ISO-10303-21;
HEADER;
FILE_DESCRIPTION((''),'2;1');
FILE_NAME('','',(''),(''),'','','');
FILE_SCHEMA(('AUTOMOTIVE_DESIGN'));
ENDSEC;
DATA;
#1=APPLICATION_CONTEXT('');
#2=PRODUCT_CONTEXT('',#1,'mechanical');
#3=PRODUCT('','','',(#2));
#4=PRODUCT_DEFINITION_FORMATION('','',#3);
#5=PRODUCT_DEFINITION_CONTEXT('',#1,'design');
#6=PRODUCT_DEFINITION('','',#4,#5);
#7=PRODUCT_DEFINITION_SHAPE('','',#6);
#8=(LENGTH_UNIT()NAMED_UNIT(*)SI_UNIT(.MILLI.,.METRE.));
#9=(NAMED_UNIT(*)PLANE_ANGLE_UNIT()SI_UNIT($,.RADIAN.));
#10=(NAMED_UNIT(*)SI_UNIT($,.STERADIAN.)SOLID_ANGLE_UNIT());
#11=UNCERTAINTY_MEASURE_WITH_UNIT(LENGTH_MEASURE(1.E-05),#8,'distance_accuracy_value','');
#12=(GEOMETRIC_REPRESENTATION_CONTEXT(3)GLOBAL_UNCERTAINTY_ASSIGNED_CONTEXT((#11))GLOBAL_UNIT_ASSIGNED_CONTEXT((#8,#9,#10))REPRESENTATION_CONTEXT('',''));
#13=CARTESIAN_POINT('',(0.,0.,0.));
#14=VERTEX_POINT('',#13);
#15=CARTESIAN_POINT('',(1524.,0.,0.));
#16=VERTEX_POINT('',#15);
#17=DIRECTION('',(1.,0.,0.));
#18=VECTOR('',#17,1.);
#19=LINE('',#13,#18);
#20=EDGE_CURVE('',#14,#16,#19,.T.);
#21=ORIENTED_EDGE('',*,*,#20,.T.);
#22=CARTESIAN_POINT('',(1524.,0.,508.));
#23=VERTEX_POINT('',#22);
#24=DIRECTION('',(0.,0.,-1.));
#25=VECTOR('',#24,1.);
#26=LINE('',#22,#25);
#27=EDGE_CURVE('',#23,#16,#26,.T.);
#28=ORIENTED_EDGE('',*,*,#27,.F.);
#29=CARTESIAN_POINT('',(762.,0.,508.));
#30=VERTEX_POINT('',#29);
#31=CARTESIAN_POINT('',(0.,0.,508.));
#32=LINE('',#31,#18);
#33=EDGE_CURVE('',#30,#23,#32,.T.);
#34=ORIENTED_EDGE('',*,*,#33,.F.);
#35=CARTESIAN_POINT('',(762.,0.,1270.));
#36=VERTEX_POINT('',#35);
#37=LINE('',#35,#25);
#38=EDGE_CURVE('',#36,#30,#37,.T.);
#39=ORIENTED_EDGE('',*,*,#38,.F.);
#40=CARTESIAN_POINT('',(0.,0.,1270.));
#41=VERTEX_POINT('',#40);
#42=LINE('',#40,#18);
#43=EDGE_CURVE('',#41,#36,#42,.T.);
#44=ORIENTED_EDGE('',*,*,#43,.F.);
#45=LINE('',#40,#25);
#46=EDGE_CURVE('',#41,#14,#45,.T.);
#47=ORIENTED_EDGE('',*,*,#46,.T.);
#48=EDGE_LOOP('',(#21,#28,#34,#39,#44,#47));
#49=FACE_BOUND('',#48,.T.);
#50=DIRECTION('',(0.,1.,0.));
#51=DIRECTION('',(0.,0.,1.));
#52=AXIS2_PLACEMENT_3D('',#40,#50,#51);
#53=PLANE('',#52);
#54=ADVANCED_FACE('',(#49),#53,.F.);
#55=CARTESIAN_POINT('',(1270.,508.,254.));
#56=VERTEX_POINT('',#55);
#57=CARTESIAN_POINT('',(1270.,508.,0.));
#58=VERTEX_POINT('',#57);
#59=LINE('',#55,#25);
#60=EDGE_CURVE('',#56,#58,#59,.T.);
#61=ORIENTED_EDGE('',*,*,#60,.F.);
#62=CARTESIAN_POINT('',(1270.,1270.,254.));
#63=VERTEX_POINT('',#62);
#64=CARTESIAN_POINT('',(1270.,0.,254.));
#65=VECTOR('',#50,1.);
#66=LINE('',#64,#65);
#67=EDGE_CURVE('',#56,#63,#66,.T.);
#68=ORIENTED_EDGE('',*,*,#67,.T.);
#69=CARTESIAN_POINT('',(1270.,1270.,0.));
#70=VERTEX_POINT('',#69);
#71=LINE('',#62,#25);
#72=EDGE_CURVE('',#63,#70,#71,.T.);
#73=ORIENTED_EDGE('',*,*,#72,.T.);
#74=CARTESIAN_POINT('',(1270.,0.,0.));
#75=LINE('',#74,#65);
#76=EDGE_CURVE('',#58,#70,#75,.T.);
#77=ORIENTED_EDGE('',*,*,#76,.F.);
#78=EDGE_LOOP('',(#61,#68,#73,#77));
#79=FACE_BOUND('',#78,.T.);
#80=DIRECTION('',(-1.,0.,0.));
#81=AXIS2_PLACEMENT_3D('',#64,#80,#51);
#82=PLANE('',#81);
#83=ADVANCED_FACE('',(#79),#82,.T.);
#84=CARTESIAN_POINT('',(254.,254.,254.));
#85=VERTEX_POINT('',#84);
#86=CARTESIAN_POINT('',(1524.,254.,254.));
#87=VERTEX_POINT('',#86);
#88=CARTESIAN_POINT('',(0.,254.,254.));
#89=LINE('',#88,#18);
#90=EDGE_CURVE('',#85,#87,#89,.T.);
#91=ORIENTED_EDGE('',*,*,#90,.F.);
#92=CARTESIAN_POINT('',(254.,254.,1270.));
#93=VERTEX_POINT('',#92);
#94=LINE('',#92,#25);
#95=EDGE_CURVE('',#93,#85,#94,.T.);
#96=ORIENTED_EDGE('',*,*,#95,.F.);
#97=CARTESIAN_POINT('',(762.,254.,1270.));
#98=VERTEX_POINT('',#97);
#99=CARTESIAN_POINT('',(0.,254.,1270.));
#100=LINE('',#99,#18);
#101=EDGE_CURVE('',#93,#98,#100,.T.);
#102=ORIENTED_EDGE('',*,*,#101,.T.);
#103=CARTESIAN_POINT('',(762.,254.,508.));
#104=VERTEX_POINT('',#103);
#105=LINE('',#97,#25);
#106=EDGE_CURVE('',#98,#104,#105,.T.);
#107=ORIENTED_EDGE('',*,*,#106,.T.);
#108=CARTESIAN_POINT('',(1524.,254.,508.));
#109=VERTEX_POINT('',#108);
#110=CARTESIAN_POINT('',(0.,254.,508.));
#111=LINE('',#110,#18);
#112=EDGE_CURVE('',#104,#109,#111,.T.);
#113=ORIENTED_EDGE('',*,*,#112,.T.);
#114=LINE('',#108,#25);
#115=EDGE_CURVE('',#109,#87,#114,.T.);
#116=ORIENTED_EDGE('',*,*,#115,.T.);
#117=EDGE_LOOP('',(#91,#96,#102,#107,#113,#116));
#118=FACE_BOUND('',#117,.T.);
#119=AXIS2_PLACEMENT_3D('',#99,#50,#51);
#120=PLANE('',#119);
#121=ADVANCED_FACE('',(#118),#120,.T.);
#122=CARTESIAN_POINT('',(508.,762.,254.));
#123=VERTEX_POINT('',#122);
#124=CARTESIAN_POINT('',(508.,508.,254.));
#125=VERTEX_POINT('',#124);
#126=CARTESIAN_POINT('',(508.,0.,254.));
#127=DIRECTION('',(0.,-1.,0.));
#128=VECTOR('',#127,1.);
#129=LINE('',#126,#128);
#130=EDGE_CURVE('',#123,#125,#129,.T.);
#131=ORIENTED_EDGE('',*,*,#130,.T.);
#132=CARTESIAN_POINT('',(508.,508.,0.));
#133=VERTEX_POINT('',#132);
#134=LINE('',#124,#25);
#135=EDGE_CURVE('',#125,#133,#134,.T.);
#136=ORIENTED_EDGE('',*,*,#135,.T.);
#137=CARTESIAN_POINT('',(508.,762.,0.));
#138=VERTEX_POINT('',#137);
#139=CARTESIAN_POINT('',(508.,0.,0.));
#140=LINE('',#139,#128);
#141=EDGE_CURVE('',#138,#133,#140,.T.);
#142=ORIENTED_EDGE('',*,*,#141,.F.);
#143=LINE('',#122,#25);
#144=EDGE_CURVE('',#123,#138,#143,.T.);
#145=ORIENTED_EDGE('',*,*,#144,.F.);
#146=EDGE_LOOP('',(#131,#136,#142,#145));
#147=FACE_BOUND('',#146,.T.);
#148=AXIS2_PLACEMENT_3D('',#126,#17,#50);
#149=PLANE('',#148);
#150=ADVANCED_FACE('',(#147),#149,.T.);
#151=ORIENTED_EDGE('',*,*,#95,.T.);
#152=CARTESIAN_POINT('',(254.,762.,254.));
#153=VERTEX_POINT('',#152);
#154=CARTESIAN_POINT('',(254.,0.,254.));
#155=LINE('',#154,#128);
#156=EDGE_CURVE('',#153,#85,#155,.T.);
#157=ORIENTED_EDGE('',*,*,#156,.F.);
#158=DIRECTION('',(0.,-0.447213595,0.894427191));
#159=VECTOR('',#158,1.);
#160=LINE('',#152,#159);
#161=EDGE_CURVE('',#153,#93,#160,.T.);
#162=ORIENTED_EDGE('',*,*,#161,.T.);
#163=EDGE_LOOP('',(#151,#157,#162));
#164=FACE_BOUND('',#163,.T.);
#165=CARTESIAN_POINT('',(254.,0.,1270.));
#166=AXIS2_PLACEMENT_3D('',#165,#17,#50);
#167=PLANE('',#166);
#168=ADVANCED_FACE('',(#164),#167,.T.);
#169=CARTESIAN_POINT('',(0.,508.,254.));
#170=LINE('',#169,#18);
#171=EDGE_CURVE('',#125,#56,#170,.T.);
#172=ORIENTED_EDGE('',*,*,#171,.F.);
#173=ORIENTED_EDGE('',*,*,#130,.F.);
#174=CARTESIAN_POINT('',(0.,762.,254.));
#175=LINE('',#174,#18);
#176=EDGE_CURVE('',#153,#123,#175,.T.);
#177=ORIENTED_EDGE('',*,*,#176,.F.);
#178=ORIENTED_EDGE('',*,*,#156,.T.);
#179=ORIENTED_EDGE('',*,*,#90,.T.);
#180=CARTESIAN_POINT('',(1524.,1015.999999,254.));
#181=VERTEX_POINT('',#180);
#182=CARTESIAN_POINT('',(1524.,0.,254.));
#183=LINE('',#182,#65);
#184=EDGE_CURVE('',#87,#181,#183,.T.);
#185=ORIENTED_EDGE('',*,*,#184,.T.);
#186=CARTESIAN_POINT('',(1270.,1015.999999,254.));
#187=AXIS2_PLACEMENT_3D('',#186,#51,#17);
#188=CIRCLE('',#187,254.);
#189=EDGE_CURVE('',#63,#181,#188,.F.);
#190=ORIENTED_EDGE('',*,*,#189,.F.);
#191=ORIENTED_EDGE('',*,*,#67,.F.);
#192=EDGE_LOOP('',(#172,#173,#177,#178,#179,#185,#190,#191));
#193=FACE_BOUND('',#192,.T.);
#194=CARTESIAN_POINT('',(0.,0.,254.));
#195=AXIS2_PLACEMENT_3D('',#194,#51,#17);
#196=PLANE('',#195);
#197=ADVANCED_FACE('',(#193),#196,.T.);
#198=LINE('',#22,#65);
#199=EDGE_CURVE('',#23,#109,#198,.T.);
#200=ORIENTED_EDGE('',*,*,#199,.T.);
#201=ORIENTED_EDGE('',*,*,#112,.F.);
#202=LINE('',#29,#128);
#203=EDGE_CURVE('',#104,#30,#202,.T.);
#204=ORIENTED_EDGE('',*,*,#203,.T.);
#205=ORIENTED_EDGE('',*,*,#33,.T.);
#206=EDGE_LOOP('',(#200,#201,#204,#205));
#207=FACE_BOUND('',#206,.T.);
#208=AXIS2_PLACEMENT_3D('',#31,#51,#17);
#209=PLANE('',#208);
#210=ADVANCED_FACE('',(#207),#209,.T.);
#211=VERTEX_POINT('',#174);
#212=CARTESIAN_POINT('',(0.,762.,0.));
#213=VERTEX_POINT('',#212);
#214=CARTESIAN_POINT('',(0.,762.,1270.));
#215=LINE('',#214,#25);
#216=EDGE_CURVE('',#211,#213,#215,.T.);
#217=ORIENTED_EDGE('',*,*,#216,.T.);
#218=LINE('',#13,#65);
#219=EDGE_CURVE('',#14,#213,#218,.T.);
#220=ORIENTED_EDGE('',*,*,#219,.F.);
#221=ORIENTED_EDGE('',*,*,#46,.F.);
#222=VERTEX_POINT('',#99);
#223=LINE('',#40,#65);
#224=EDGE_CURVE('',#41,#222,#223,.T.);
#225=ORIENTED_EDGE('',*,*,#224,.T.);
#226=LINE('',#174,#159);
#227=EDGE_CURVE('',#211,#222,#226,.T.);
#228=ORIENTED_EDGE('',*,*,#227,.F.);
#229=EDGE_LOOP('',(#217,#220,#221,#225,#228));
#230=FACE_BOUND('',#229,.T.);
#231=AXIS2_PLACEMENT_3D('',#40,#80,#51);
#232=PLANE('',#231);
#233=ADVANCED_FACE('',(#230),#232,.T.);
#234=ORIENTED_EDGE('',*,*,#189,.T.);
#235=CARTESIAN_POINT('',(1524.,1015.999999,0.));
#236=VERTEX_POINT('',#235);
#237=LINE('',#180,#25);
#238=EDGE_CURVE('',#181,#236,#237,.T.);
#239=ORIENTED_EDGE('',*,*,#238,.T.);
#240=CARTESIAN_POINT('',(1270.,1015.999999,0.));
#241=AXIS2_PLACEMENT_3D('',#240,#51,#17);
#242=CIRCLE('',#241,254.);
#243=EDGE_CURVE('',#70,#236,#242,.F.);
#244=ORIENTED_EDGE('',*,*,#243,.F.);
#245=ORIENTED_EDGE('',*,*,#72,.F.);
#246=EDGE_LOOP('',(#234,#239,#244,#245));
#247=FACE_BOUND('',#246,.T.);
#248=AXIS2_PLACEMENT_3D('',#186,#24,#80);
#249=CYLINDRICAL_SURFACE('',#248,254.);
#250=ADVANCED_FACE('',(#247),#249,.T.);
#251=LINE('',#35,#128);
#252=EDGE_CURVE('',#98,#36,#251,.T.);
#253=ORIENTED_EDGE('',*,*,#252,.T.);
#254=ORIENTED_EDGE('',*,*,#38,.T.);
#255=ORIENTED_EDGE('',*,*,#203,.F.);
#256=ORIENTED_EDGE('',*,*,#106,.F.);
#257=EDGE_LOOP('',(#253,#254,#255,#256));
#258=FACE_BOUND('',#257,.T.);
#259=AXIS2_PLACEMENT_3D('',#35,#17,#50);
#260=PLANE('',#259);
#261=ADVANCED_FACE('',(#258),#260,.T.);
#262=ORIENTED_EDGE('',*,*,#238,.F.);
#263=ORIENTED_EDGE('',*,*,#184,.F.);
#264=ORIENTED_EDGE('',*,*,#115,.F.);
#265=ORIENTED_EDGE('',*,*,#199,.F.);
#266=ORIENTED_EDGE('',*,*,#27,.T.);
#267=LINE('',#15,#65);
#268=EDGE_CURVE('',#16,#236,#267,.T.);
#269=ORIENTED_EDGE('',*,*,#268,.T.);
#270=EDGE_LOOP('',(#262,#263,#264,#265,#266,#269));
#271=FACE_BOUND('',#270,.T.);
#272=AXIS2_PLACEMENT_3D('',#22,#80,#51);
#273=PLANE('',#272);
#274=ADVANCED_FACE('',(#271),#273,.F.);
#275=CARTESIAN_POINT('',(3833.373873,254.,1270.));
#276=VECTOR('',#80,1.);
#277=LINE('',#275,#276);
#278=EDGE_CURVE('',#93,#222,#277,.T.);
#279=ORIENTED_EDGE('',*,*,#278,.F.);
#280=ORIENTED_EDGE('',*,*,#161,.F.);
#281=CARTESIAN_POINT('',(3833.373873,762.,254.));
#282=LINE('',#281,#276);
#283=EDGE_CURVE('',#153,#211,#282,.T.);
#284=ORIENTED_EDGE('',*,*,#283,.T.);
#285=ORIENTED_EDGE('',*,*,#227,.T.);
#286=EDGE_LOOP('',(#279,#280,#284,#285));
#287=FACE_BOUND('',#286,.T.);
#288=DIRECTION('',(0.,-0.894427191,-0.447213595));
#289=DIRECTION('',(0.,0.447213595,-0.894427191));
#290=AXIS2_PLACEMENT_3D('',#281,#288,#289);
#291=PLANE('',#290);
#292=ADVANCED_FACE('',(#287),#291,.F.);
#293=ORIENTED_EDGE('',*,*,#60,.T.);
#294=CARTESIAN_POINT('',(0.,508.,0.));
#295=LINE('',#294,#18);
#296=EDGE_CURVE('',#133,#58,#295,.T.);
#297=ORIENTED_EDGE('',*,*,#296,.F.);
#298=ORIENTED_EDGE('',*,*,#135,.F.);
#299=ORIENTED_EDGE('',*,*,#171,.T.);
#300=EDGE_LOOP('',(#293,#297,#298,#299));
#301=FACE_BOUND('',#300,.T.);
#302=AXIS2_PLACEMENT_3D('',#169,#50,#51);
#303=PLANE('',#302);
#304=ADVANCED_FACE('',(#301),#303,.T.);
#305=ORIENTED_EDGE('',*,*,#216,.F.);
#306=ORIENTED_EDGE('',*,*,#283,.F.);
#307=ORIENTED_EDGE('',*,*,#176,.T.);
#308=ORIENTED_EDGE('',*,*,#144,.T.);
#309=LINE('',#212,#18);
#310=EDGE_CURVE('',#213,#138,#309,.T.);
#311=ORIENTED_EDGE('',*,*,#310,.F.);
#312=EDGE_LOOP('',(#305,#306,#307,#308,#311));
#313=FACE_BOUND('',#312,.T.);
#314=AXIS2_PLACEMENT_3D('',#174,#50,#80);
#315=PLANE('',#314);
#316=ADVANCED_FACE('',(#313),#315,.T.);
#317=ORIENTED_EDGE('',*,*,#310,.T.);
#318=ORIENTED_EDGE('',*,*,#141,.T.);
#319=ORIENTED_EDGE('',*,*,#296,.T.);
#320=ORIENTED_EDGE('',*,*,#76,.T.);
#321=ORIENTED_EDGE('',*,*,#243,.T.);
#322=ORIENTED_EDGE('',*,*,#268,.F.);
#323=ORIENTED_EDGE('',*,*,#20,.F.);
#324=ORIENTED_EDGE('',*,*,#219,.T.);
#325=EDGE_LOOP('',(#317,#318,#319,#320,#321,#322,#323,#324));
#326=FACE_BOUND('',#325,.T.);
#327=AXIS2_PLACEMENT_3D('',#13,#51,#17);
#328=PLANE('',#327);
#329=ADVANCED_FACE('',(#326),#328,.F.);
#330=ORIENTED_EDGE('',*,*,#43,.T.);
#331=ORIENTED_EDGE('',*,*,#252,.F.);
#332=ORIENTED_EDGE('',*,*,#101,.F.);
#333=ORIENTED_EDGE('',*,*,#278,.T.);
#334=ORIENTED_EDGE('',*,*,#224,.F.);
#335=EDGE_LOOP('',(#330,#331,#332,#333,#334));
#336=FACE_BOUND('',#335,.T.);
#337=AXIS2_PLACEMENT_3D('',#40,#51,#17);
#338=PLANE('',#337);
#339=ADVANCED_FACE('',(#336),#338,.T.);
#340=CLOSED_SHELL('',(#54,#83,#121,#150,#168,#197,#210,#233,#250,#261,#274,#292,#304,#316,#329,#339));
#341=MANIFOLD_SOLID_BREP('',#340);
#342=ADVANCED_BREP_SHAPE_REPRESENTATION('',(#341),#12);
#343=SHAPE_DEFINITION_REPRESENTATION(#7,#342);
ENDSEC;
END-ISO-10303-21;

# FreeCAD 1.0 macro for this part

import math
import FreeCAD as App
import Part
import Sketcher

V = App.Vector
Q = App.Units.Quantity


def add_polygon(sketch, points):
    """Adds a closed chain of lines whose ends are joined by coincident constraints."""
    first, n = sketch.GeometryCount, len(points)
    for a, b in zip(points, points[1:] + points[:1]):
        sketch.addGeometry(Part.LineSegment(App.Vector(*a, 0), App.Vector(*b, 0)), False)
    for i in range(n):
        sketch.addConstraint(Sketcher.Constraint("Coincident", first + i, 2, first + (i + 1) % n, 1))

doc = App.newDocument("Part")
body = doc.addObject("PartDesign::Body", "Body")

# Sketch on XY plane
sketch1 = doc.addObject("Sketcher::SketchObject", "Sketch")
body.addObject(sketch1)
sketch1.AttachmentSupport = (doc.XY_Plane, [""])
sketch1.MapMode = "FlatFace"
add_polygon(sketch1, [(0, 254), (0, 0), (762, 0), (762, 254)])  # lines 0-3
sketch1.addConstraint([
    Sketcher.Constraint("Vertical", 0),
    Sketcher.Constraint("Horizontal", 1),
    Sketcher.Constraint("Vertical", 2),
    Sketcher.Constraint("Horizontal", 3),
    Sketcher.Constraint("Coincident", 0, 2, -1, 1),
    Sketcher.Constraint("DistanceX", 1, 1, 1, 2, Q("30 in")),
    Sketcher.Constraint("DistanceY", 0, 2, 0, 1, Q("10 in")),
])
pad1 = doc.addObject("PartDesign::Pad", "Pad")
body.addObject(pad1)
pad1.Profile = sketch1
pad1.Length = Q("50 in")

# Sketch on XY plane
sketch2 = doc.addObject("Sketcher::SketchObject", "Sketch001")
body.addObject(sketch2)
sketch2.AttachmentSupport = (doc.XY_Plane, [""])
sketch2.MapMode = "FlatFace"
add_polygon(sketch2, [(762, 254), (762, 0), (1524, 0), (1524, 254)])  # lines 0-3
sketch2.addConstraint([
    Sketcher.Constraint("Vertical", 0),
    Sketcher.Constraint("Horizontal", 1),
    Sketcher.Constraint("Vertical", 2),
    Sketcher.Constraint("Horizontal", 3),
    Sketcher.Constraint("PointOnObject", 0, 2, -1),
    Sketcher.Constraint("DistanceX", 1, 1, 1, 2, Q("30 in")),
    Sketcher.Constraint("DistanceY", 0, 2, 0, 1, Q("10 in")),
    Sketcher.Constraint("DistanceX", -1, 1, 0, 2, Q("30 in")),
])
pad2 = doc.addObject("PartDesign::Pad", "Pad001")
body.addObject(pad2)
pad2.Profile = sketch2
pad2.Length = Q("20 in")

# Sketch on XY plane
sketch3 = doc.addObject("Sketcher::SketchObject", "Sketch002")
body.addObject(sketch3)
sketch3.AttachmentSupport = (doc.XY_Plane, [""])
sketch3.MapMode = "FlatFace"
sketch3.addGeometry([
    Part.LineSegment(V(254, 762, 0), V(254, 254, 0)),  # 0
    Part.LineSegment(V(254, 254, 0), V(1524, 254, 0)),  # 1
    Part.LineSegment(V(1524, 254, 0), V(1524, 1016, 0)),  # 2
    Part.ArcOfCircle(Part.Circle(V(1270, 1016, 0), V(0, 0, 1), 254), math.radians(0), math.radians(90)),  # 3
    Part.LineSegment(V(1270, 1270, 0), V(1270, 508, 0)),  # 4
    Part.LineSegment(V(1270, 508, 0), V(508, 508, 0)),  # 5
    Part.LineSegment(V(508, 508, 0), V(508, 762, 0)),  # 6
    Part.LineSegment(V(508, 762, 0), V(254, 762, 0)),  # 7
], False)
sketch3.addConstraint([
    Sketcher.Constraint("Coincident", 0, 2, 1, 1),
    Sketcher.Constraint("Coincident", 1, 2, 2, 1),
    Sketcher.Constraint("Tangent", 2, 2, 3, 1),
    Sketcher.Constraint("Coincident", 3, 2, 4, 1),
    Sketcher.Constraint("Coincident", 4, 2, 5, 1),
    Sketcher.Constraint("Coincident", 5, 2, 6, 1),
    Sketcher.Constraint("Coincident", 6, 2, 7, 1),
    Sketcher.Constraint("Coincident", 7, 2, 0, 1),
    Sketcher.Constraint("Vertical", 0),
    Sketcher.Constraint("Horizontal", 1),
    Sketcher.Constraint("Vertical", 2),
    Sketcher.Constraint("Vertical", 4),
    Sketcher.Constraint("Horizontal", 5),
    Sketcher.Constraint("Vertical", 6),
    Sketcher.Constraint("Horizontal", 7),
    Sketcher.Constraint("Equal", 5, 2),
    Sketcher.Constraint("Equal", 2, 4),
    Sketcher.Constraint("Equal", 7, 6),
    Sketcher.Constraint("Radius", 3, Q("10 in")),
    Sketcher.Constraint("DistanceX", 1, 1, 1, 2, Q("50 in")),
    Sketcher.Constraint("DistanceX", 5, 2, 5, 1, Q("30 in")),
    Sketcher.Constraint("DistanceX", 7, 2, 7, 1, Q("10 in")),
    Sketcher.Constraint("DistanceX", -1, 1, 3, 3, Q("50 in")),
    Sketcher.Constraint("DistanceY", -1, 1, 3, 3, Q("40 in")),
])
pad3 = doc.addObject("PartDesign::Pad", "Pad002")
body.addObject(pad3)
pad3.Profile = sketch3
pad3.Length = Q("10 in")

# Sketch on XY plane
sketch4 = doc.addObject("Sketcher::SketchObject", "Sketch003")
body.addObject(sketch4)
sketch4.AttachmentSupport = (doc.XY_Plane, [""])
sketch4.MapMode = "FlatFace"
add_polygon(sketch4, [(0, 762), (0, 254), (254, 254), (254, 762)])  # lines 0-3
sketch4.addConstraint([
    Sketcher.Constraint("Vertical", 0),
    Sketcher.Constraint("Horizontal", 1),
    Sketcher.Constraint("Vertical", 2),
    Sketcher.Constraint("Horizontal", 3),
    Sketcher.Constraint("PointOnObject", 0, 2, -2),
    Sketcher.Constraint("DistanceX", 1, 1, 1, 2, Q("10 in")),
    Sketcher.Constraint("DistanceY", 0, 2, 0, 1, Q("20 in")),
    Sketcher.Constraint("DistanceY", -1, 1, 0, 2, Q("10 in")),
])
pad4 = doc.addObject("PartDesign::Pad", "Pad003")
body.addObject(pad4)
pad4.Profile = sketch4
pad4.Length = Q("50 in")

# Sketch on YZ plane
sketch5 = doc.addObject("Sketcher::SketchObject", "Sketch004")
body.addObject(sketch5)
sketch5.AttachmentSupport = (doc.YZ_Plane, [""])
sketch5.MapMode = "FlatFace"
sketch5.AttachmentOffset = App.Placement(V(0, 0, 10 * 25.4), App.Rotation())
add_polygon(sketch5, [(-1205, 4188), (2221, -2664), (8058, 254), (4631, 7107)])  # lines 0-3
sketch5.addConstraint([
    Sketcher.Constraint("Perpendicular", 0, 1),
    Sketcher.Constraint("Perpendicular", 1, 2),
    Sketcher.Constraint("Perpendicular", 2, 3),
    Sketcher.Constraint("DistanceY", -1, 1, 1, 2, Q("10 in")),
    Sketcher.Constraint("DistanceY", 0, 2, -1, 1, 2664.325512),
    Sketcher.Constraint("DistanceX", -1, 1, 1, 2, 8057.81378),
    Sketcher.Constraint("DistanceY", -1, 1, 3, 2, 4188.325512),
    Sketcher.Constraint("DistanceX", 2, 2, 1, 2, 3426.325512),
])
pocket1 = doc.addObject("PartDesign::Pocket", "Pocket")
body.addObject(pocket1)
pocket1.Profile = sketch5
pocket1.Type = "TwoLengths"
pocket1.Length = Q("10 in")
pocket1.Length2 = 255
pocket1.Reversed = True

doc.recompute()
